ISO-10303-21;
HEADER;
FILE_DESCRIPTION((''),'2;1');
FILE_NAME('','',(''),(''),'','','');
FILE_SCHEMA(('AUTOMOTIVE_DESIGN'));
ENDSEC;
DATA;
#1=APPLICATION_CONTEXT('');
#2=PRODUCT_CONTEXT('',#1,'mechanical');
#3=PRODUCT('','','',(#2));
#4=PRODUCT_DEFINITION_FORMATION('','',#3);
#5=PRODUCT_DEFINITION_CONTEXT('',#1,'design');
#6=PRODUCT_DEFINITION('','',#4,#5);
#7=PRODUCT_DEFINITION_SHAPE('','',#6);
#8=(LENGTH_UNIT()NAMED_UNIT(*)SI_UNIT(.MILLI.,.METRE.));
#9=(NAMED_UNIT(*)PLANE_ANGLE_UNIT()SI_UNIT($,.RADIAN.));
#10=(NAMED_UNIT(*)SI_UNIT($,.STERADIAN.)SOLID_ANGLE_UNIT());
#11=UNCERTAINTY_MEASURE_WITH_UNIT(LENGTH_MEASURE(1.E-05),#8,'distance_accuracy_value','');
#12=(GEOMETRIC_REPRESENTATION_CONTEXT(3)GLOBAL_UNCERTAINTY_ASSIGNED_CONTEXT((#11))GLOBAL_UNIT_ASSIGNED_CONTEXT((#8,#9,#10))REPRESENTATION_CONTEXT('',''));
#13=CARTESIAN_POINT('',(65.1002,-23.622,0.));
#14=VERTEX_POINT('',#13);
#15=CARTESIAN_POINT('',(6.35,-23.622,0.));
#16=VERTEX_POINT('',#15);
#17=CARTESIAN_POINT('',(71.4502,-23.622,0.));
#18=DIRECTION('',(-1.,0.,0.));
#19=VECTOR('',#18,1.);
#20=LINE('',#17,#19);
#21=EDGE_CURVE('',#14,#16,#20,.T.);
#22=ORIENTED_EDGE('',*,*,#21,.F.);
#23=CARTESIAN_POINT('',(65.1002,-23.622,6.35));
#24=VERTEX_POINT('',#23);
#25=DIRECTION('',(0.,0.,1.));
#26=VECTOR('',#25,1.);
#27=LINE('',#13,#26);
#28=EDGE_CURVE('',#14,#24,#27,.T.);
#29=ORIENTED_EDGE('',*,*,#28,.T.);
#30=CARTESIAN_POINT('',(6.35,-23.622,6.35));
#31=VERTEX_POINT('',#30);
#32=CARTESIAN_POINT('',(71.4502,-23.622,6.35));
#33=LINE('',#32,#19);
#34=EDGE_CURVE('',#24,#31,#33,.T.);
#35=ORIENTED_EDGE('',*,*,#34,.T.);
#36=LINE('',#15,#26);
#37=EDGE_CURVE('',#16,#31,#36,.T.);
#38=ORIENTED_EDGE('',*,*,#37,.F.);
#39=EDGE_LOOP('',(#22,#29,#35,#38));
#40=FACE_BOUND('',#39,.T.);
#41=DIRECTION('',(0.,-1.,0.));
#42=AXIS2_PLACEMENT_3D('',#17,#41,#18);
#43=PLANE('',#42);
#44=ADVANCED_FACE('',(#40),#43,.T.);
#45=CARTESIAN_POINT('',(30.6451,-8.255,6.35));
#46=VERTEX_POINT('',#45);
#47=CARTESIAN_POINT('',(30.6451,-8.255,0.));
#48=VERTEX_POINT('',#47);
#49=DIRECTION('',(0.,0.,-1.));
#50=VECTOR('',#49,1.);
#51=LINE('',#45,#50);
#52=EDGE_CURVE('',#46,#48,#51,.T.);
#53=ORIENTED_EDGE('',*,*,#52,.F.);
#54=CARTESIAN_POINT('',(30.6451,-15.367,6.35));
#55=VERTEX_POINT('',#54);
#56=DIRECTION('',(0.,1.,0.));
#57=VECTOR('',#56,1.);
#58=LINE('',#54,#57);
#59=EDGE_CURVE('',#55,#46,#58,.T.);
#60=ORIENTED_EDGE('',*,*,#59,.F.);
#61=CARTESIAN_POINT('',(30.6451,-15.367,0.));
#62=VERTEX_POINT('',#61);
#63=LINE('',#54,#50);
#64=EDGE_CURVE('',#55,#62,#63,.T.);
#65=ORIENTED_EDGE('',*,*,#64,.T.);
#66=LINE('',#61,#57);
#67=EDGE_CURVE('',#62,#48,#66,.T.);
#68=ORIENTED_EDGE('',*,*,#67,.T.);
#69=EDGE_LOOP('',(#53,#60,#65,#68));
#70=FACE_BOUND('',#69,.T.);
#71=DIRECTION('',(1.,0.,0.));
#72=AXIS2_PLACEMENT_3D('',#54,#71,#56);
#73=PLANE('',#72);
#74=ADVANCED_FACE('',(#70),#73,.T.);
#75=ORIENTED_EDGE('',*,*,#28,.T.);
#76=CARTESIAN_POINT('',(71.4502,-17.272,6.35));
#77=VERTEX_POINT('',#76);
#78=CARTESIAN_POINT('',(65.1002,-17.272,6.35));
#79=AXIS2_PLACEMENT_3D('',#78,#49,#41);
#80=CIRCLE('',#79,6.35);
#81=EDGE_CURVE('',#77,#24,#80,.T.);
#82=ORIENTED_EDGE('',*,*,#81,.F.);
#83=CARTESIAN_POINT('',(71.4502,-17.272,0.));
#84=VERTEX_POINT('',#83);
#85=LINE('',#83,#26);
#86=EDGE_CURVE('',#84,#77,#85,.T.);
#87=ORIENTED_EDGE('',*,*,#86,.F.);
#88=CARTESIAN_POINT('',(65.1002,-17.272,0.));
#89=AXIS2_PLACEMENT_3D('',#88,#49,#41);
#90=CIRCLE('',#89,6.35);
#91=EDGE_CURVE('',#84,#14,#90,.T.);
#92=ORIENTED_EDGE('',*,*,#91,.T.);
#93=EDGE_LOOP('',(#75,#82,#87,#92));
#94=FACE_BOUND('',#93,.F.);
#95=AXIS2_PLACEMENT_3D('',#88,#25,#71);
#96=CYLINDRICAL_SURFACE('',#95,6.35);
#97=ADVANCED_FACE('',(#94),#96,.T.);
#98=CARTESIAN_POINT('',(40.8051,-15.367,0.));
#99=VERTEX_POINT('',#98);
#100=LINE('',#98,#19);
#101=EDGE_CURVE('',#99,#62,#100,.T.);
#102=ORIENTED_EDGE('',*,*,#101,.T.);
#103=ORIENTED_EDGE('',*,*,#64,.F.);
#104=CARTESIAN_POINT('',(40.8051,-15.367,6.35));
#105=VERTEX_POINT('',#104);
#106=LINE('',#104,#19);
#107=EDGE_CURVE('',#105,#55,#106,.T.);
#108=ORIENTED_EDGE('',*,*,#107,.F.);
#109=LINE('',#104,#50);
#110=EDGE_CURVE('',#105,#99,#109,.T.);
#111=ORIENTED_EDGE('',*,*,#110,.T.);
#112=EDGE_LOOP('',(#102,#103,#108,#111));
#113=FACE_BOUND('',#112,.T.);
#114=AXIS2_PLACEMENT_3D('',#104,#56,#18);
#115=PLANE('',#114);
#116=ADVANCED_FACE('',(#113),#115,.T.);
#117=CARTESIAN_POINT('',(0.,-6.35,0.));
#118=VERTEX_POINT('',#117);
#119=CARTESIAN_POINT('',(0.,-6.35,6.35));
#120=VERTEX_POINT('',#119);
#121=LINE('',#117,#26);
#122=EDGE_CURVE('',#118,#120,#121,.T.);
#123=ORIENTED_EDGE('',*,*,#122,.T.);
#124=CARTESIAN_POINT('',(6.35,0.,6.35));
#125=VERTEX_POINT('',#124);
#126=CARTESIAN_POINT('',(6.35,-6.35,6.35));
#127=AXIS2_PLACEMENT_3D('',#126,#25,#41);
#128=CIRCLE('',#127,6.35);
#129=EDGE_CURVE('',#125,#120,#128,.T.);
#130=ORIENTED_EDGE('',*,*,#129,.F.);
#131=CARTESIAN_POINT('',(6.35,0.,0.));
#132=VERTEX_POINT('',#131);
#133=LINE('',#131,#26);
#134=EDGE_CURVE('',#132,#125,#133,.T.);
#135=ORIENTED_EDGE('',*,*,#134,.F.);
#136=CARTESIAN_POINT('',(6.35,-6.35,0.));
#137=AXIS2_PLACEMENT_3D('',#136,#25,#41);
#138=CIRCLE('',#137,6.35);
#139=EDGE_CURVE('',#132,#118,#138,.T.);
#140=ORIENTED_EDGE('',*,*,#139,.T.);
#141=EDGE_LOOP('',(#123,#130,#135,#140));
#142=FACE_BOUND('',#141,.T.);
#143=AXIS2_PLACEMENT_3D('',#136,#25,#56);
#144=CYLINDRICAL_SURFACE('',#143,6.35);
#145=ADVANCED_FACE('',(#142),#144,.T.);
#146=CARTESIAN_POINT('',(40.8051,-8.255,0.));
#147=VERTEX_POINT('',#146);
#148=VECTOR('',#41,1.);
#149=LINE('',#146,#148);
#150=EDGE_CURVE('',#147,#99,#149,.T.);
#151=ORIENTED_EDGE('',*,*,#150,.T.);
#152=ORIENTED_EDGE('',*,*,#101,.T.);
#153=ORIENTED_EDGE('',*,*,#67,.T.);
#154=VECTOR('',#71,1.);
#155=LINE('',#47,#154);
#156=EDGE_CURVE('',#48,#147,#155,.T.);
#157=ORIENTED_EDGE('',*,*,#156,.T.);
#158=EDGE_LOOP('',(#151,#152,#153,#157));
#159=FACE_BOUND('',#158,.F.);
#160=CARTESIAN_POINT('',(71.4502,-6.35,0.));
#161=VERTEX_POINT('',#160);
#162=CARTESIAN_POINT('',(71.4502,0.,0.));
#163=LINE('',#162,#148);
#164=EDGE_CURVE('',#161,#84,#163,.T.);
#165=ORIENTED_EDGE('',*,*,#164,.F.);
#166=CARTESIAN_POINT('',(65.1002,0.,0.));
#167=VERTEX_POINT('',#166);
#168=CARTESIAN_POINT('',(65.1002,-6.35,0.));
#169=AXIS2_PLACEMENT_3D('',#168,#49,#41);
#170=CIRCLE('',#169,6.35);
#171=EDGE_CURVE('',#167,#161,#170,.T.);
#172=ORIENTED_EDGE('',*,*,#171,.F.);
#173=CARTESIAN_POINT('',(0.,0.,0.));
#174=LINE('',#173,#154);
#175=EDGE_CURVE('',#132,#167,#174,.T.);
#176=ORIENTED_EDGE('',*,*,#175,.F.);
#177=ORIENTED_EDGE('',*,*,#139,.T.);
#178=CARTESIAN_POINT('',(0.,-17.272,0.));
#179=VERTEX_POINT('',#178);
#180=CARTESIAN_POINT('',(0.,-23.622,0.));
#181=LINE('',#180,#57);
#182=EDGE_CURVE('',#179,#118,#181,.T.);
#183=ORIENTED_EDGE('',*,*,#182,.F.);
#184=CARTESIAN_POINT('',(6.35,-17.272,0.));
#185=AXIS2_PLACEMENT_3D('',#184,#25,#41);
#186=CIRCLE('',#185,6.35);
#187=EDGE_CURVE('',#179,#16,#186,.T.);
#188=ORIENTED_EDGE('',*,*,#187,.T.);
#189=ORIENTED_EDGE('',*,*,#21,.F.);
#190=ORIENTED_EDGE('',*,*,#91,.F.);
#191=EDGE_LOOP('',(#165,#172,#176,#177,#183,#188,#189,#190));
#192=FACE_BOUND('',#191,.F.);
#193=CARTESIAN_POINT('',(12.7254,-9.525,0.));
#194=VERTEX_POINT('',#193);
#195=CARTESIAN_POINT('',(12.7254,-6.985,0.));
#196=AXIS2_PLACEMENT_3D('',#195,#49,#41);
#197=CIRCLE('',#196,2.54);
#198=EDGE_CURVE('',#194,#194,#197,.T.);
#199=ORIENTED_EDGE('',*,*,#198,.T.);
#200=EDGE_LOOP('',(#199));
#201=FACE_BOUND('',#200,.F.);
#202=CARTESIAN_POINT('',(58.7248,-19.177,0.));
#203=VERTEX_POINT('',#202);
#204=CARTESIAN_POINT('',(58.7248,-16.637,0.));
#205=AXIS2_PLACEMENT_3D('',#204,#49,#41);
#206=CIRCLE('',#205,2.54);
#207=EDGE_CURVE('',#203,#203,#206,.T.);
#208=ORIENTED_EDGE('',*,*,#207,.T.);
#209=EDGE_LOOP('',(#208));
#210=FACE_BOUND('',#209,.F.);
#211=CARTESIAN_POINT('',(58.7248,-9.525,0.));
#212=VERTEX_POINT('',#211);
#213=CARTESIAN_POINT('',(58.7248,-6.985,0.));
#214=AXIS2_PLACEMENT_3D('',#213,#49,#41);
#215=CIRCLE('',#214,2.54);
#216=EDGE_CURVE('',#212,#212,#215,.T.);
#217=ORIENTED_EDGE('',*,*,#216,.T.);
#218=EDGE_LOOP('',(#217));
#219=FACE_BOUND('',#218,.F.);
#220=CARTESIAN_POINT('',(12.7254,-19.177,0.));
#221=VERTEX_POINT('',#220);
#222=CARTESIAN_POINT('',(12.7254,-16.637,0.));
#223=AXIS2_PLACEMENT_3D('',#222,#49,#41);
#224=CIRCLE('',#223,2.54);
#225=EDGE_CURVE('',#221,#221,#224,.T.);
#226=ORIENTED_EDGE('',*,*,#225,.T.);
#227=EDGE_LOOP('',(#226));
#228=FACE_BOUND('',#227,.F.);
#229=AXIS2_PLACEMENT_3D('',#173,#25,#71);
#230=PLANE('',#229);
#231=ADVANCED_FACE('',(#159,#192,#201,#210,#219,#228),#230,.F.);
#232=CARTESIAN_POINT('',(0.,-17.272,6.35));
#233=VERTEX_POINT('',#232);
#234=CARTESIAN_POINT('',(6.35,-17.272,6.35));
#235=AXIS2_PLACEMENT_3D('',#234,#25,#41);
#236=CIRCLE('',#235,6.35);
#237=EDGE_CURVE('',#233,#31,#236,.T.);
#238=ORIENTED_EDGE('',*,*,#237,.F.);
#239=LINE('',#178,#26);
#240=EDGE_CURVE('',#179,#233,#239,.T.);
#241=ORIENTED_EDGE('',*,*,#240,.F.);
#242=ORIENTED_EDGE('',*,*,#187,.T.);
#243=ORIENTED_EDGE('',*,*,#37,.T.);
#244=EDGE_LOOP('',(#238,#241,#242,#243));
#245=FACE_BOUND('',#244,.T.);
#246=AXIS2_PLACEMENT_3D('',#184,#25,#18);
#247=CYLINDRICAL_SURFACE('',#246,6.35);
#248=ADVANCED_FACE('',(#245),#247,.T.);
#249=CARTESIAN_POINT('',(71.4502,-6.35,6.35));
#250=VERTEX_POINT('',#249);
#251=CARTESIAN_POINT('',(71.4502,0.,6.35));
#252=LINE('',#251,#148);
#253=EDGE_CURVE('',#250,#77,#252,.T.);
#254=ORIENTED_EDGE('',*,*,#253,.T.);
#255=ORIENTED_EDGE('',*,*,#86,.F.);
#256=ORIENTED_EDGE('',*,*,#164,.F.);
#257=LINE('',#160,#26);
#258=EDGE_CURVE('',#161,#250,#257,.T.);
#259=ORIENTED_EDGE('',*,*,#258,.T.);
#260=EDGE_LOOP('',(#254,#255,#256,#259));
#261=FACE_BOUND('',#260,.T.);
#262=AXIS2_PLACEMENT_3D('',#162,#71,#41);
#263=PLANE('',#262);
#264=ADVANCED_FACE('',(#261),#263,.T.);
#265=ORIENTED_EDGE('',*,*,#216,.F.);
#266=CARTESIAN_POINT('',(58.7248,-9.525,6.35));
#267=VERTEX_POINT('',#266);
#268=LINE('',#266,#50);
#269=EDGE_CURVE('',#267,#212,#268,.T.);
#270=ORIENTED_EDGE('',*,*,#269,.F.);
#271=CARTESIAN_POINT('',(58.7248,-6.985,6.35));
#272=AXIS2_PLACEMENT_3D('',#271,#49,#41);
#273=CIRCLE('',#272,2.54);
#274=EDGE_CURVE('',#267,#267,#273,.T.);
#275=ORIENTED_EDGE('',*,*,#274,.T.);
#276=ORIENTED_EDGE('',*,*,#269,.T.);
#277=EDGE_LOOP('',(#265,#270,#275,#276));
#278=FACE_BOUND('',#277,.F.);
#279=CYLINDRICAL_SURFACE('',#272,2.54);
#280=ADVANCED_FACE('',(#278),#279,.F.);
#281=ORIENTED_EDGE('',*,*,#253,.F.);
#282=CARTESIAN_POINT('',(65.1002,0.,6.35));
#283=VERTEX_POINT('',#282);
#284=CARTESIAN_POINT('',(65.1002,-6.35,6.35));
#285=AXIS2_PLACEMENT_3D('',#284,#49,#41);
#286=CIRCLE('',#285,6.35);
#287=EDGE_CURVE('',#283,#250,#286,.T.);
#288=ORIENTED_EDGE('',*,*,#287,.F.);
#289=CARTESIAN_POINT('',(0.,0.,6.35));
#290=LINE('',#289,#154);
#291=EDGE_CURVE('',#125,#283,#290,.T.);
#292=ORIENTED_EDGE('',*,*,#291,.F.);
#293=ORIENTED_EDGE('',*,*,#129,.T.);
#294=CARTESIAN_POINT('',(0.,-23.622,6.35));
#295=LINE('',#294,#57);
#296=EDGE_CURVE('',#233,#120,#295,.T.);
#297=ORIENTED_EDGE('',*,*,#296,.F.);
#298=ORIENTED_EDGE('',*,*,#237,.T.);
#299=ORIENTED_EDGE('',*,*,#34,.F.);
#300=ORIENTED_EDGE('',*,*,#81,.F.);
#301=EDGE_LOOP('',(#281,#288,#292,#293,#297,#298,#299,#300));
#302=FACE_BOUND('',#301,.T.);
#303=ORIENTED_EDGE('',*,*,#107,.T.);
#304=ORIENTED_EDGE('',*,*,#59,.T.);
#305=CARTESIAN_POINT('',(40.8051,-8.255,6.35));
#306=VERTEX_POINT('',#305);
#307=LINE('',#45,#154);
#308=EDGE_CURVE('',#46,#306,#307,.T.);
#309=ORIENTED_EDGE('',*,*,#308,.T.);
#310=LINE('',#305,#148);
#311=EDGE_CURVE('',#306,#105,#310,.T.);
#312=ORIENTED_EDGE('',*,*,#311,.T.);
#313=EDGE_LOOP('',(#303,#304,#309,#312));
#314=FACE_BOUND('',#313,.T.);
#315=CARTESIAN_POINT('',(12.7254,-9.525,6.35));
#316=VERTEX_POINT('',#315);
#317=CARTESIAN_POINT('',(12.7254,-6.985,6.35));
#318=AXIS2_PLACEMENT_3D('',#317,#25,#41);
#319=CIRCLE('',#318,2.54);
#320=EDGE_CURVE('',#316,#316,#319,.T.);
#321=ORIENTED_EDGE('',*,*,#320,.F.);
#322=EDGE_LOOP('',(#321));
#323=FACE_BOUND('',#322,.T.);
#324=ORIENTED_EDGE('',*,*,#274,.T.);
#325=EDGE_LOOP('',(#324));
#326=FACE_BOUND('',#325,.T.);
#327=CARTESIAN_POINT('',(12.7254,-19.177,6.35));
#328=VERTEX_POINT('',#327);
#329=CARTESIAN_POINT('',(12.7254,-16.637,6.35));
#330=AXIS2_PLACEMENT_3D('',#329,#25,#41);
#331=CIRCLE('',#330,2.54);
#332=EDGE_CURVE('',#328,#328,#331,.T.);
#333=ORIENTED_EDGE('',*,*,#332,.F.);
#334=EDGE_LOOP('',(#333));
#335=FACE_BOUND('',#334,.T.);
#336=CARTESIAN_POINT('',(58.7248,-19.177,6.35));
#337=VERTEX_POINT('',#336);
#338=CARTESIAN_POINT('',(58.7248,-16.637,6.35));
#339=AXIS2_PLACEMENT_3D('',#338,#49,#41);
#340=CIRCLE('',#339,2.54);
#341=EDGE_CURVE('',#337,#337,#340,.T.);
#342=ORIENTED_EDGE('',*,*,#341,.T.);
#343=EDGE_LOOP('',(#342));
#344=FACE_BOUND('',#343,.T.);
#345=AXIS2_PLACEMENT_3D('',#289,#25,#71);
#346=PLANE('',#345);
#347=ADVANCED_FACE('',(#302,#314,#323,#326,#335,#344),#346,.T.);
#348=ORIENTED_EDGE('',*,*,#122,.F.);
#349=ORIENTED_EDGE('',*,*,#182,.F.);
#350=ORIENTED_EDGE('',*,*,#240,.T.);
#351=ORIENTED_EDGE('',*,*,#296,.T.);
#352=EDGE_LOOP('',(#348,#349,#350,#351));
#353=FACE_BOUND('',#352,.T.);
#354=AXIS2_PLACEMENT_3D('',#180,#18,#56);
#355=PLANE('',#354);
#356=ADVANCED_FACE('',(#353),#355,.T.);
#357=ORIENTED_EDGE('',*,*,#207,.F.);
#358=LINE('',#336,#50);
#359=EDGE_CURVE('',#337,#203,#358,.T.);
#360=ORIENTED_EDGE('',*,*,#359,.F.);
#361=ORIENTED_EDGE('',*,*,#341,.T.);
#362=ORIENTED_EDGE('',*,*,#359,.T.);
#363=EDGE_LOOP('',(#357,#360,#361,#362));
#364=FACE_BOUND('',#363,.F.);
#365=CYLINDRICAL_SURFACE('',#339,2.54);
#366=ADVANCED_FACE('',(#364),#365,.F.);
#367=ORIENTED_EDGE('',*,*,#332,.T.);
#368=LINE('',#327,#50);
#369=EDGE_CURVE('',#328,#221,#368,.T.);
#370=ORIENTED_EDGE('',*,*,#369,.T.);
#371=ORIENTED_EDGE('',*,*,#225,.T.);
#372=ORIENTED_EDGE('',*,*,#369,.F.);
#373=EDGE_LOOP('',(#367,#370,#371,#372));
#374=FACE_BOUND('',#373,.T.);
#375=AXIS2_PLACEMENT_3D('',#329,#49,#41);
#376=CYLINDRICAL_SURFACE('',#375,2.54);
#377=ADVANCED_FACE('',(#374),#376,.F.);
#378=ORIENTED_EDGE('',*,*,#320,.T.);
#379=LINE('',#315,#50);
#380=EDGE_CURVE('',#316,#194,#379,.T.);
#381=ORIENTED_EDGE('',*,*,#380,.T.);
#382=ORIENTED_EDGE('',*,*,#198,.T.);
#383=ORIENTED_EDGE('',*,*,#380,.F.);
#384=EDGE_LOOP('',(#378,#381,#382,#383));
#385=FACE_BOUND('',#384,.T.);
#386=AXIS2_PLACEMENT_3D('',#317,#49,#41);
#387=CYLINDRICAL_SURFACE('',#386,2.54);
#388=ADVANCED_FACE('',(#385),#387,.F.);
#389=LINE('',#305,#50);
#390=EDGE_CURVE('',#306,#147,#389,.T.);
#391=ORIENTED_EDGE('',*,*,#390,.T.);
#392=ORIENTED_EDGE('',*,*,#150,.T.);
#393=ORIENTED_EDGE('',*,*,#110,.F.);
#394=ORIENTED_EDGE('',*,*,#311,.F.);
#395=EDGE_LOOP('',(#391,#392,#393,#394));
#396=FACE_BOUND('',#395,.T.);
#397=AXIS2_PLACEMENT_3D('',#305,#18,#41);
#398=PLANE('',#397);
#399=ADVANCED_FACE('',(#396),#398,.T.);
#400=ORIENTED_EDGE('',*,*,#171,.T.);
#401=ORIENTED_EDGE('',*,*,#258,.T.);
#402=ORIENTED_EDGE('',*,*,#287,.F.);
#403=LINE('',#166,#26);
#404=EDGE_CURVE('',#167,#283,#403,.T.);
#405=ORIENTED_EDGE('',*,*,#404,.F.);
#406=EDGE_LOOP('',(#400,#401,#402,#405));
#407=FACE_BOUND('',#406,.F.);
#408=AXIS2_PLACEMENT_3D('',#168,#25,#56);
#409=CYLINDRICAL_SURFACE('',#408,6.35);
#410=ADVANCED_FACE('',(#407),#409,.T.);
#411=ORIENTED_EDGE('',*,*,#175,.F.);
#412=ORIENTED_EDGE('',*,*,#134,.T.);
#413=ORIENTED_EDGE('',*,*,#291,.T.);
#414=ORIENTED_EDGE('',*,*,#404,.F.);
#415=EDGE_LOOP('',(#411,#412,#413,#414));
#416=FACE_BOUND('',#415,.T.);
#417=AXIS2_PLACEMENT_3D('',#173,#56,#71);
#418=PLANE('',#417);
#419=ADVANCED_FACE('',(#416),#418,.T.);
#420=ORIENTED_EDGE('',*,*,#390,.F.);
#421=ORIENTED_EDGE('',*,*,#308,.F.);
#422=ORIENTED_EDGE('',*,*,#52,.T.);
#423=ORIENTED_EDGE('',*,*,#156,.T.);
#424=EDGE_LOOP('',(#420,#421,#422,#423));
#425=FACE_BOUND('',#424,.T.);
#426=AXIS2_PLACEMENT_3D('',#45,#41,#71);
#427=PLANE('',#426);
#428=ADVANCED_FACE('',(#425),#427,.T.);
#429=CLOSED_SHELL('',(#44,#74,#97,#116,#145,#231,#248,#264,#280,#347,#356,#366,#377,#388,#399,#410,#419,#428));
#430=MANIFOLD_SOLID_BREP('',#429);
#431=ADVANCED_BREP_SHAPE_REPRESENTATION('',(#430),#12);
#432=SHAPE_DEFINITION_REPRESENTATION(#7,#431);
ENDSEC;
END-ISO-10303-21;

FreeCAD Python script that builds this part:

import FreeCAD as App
import Part
import Sketcher
Q = App.Units.Quantity


def edges_at(feature, points):
    """Names of the edges that pass closest to the given points."""
    edges = feature.Shape.Edges
    near = lambda p: min(range(len(edges)), key=lambda i: edges[i].distToShape(Part.Vertex(*p))[0])
    return sorted({f"Edge{near(p) + 1}" for p in points})

doc = App.newDocument("Part")
body = doc.addObject("PartDesign::Body", "Body")

# Sketch on XY plane
sketch1 = body.newObject("Sketcher::SketchObject", "Sketch")
sketch1.AttachmentSupport = (doc.getObject("XY_Plane"), [""])
sketch1.MapMode = "FlatFace"
sketch1.addGeometry([
    Part.LineSegment(App.Vector(71, 0, 0), App.Vector(0, 0, 0)),
    Part.LineSegment(App.Vector(0, 0, 0), App.Vector(0, -24, 0)),
    Part.LineSegment(App.Vector(0, -24, 0), App.Vector(71, -24, 0)),
    Part.LineSegment(App.Vector(71, -24, 0), App.Vector(71, 0, 0)),
], False)
sketch1.addConstraint([
    Sketcher.Constraint("Coincident", 0, 2, 1, 1),
    Sketcher.Constraint("Coincident", 1, 2, 2, 1),
    Sketcher.Constraint("Coincident", 2, 2, 3, 1),
    Sketcher.Constraint("Coincident", 3, 2, 0, 1),
    Sketcher.Constraint("Horizontal", 0),
    Sketcher.Constraint("Vertical", 1),
    Sketcher.Constraint("Horizontal", 2),
    Sketcher.Constraint("Vertical", 3),
    Sketcher.Constraint("Coincident", 0, 2, -1, 1),
    Sketcher.Constraint("DistanceY", 1, 2, 1, 1, Q("0.93 in")),
    Sketcher.Constraint("DistanceX", 0, 2, 0, 1, Q("2.813 in")),
])
pad1 = body.newObject("PartDesign::Pad", "Pad")
pad1.Profile = sketch1
pad1.Length = Q("0.25 in")

# Sketch on XY plane
sketch2 = body.newObject("Sketcher::SketchObject", "Sketch001")
sketch2.AttachmentSupport = (doc.getObject("XY_Plane"), [""])
sketch2.MapMode = "FlatFace"
sketch2.AttachmentOffset = App.Placement(App.Vector(0, 0, 0.25 * 25.4), App.Rotation())
sketch2.addGeometry([
    Part.Circle(App.Vector(58.7, -7, 0), App.Vector(0, 0, 1), 2.5),
    Part.Circle(App.Vector(58.7, -16.6, 0), App.Vector(0, 0, 1), 2.5),
], False)
sketch2.addConstraint([
    Sketcher.Constraint("Equal", 0, 1),
    Sketcher.Constraint("Vertical", 0, 3, 1, 3),
    Sketcher.Constraint("Diameter", 0, Q("0.2 in")),
    Sketcher.Constraint("DistanceY", 1, 3, 0, 3, Q("0.38 in")),
    Sketcher.Constraint("DistanceX", -1, 1, 0, 3, Q("2.312 in")),
    Sketcher.Constraint("DistanceY", 0, 3, -1, 1, Q("0.275 in")),
])
doc.recompute()
hole = body.newObject("PartDesign::Hole", "Hole")
hole.Profile = sketch2
hole.ThreadType = "None"
hole.Diameter = Q("0.2 in")
hole.DepthType = "Dimension"
hole.Depth = Q("1 in")
hole.DrillPoint = "Angled"
hole.DrillPointAngle = 118
doc.recompute()

datumplane = body.newObject("PartDesign::Plane", "DatumPlane")
datumplane.AttachmentSupport = (doc.getObject("YZ_Plane"), [""])
datumplane.MapMode = "FlatFace"
datumplane.AttachmentOffset = App.Placement(App.Vector(0, 0, 1.4065 * 25.4), App.Rotation())
mirrored = body.newObject("PartDesign::Mirrored", "Mirrored")
mirrored.Originals = [hole]
mirrored.MirrorPlane = (datumplane, [""])
body.Tip = mirrored

# Sketch on XY plane
sketch3 = body.newObject("Sketcher::SketchObject", "Sketch002")
sketch3.AttachmentSupport = (doc.getObject("XY_Plane"), [""])
sketch3.MapMode = "FlatFace"
sketch3.AttachmentOffset = App.Placement(App.Vector(0, 0, 0.25 * 25.4), App.Rotation())
sketch3.addGeometry([
    Part.LineSegment(App.Vector(41, -8, 0), App.Vector(31, -8, 0)),
    Part.LineSegment(App.Vector(31, -8, 0), App.Vector(31, -15, 0)),
    Part.LineSegment(App.Vector(31, -15, 0), App.Vector(41, -15, 0)),
    Part.LineSegment(App.Vector(41, -15, 0), App.Vector(41, -8, 0)),
], False)
sketch3.addConstraint([
    Sketcher.Constraint("Coincident", 0, 2, 1, 1),
    Sketcher.Constraint("Coincident", 1, 2, 2, 1),
    Sketcher.Constraint("Coincident", 2, 2, 3, 1),
    Sketcher.Constraint("Coincident", 3, 2, 0, 1),
    Sketcher.Constraint("Horizontal", 0),
    Sketcher.Constraint("Vertical", 1),
    Sketcher.Constraint("Horizontal", 2),
    Sketcher.Constraint("Vertical", 3),
    Sketcher.Constraint("DistanceX", 0, 2, 0, 1, Q("0.4 in")),
    Sketcher.Constraint("DistanceY", 1, 2, 1, 1, Q("0.28 in")),
    Sketcher.Constraint("DistanceY", 0, 2, -1, 1, Q("0.325 in")),
    Sketcher.Constraint("DistanceX", -1, 1, 0, 2, Q("1.2065 in")),
])
pocket1 = body.newObject("PartDesign::Pocket", "Pocket")
pocket1.Profile = sketch3
pocket1.Length = Q("0.25 in")
doc.recompute()

fillet = body.newObject("PartDesign::Fillet", "Fillet")
fillet.Base = (pocket1, edges_at(pocket1, [
    (71.45, 0, 3.175),
    (71.45, -23.622, 3.175),
    (0, 0, 3.175),
    (0, -23.622, 3.175),
]))
fillet.Radius = Q("0.25 in")

doc.recompute()
